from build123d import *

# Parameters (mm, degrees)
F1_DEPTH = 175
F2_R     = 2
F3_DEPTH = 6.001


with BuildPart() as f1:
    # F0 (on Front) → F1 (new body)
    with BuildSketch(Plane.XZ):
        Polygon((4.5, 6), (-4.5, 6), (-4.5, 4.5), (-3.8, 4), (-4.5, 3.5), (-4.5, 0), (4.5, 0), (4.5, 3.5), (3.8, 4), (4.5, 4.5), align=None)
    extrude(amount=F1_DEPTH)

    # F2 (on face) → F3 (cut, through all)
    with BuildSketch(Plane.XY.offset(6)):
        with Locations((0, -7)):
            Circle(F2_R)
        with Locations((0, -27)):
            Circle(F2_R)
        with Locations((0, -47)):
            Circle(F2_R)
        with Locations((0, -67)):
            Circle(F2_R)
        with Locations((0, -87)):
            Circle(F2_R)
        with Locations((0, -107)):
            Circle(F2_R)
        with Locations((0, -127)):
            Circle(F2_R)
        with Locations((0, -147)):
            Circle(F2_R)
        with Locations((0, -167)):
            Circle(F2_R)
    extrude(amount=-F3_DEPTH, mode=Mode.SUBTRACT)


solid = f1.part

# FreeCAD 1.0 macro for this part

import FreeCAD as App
import Part
import Sketcher

V = App.Vector

doc = App.newDocument("Part")
body = doc.addObject("PartDesign::Body", "Body")

# Sketch on XZ plane
sketch1 = body.newObject("Sketcher::SketchObject", "Sketch")
sketch1.AttachmentSupport = (doc.getObject("XZ_Plane"), [""])
sketch1.MapMode = "FlatFace"
sketch1.addGeometry([
    Part.LineSegment(V(4.5, 6, 0), V(-4.5, 6, 0)),  # 0
    Part.LineSegment(V(-4.5, 6, 0), V(-4.5, 4.5, 0)),  # 1
    Part.LineSegment(V(-4.5, 4.5, 0), V(-3.8, 4, 0)),  # 2
    Part.LineSegment(V(-3.8, 4, 0), V(-4.5, 3.5, 0)),  # 3
    Part.LineSegment(V(-4.5, 3.5, 0), V(-4.5, 0, 0)),  # 4
    Part.LineSegment(V(-4.5, 0, 0), V(4.5, 0, 0)),  # 5
    Part.LineSegment(V(4.5, 0, 0), V(4.5, 3.5, 0)),  # 6
    Part.LineSegment(V(4.5, 3.5, 0), V(3.8, 4, 0)),  # 7
    Part.LineSegment(V(3.8, 4, 0), V(4.5, 4.5, 0)),  # 8
    Part.LineSegment(V(4.5, 4.5, 0), V(4.5, 6, 0)),  # 9
], False)
sketch1.addConstraint([
    Sketcher.Constraint("Coincident", 0, 2, 1, 1),
    Sketcher.Constraint("Coincident", 1, 2, 2, 1),
    Sketcher.Constraint("Coincident", 2, 2, 3, 1),
    Sketcher.Constraint("Coincident", 3, 2, 4, 1),
    Sketcher.Constraint("Coincident", 4, 2, 5, 1),
    Sketcher.Constraint("Coincident", 5, 2, 6, 1),
    Sketcher.Constraint("Coincident", 6, 2, 7, 1),
    Sketcher.Constraint("Coincident", 7, 2, 8, 1),
    Sketcher.Constraint("Coincident", 8, 2, 9, 1),
    Sketcher.Constraint("Coincident", 9, 2, 0, 1),
    Sketcher.Constraint("Horizontal", 0),
    Sketcher.Constraint("Vertical", 1),
    Sketcher.Constraint("Vertical", 4),
    Sketcher.Constraint("Horizontal", 5),
    Sketcher.Constraint("Vertical", 6),
    Sketcher.Constraint("Vertical", 9),
    Sketcher.Constraint("Symmetric", 4, 2, 5, 2, -1, 1),
    Sketcher.Constraint("Symmetric", 2, 2, 7, 2, -2),
    Sketcher.Constraint("Symmetric", 1, 2, 8, 2, -2),
    Sketcher.Constraint("Parallel", 2, 7),
    Sketcher.Constraint("Parallel", 3, 8),
    Sketcher.Constraint("Vertical", 1, 2, 3, 2),
    Sketcher.Constraint("DistanceX", 0, 2, 0, 1, 9.0),
    Sketcher.Constraint("DistanceY", 1, 2, 1, 1, 1.5),
    Sketcher.Constraint("DistanceY", 4, 2, 4, 1, 3.5),
    Sketcher.Constraint("DistanceY", -1, 1, 0, 2, 6.0),
    Sketcher.Constraint("DistanceX", 2, 2, -1, 1, 3.8),
])
pad1 = body.newObject("PartDesign::Pad", "Pad")
pad1.Profile = sketch1
pad1.Length = 175

# Sketch on XY plane
sketch2 = body.newObject("Sketcher::SketchObject", "Sketch001")
sketch2.AttachmentSupport = (doc.getObject("XY_Plane"), [""])
sketch2.MapMode = "FlatFace"
sketch2.AttachmentOffset = App.Placement(V(0, 0, 6), App.Rotation())
sketch2.addGeometry([
    Part.Circle(V(0, -7, 0), V(0, 0, 1), 2),  # 0
    Part.Circle(V(0, -27, 0), V(0, 0, 1), 2),  # 1
    Part.Circle(V(0, -47, 0), V(0, 0, 1), 2),  # 2
    Part.Circle(V(0, -67, 0), V(0, 0, 1), 2),  # 3
    Part.Circle(V(0, -87, 0), V(0, 0, 1), 2),  # 4
    Part.Circle(V(0, -107, 0), V(0, 0, 1), 2),  # 5
    Part.Circle(V(0, -127, 0), V(0, 0, 1), 2),  # 6
    Part.Circle(V(0, -147, 0), V(0, 0, 1), 2),  # 7
    Part.Circle(V(0, -167, 0), V(0, 0, 1), 2),  # 8
], False)
sketch2.addConstraint([
    Sketcher.Constraint("Equal", 0, 1),
    Sketcher.Constraint("Equal", 1, 2),
    Sketcher.Constraint("Equal", 2, 3),
    Sketcher.Constraint("Equal", 3, 4),
    Sketcher.Constraint("Equal", 4, 5),
    Sketcher.Constraint("Equal", 5, 6),
    Sketcher.Constraint("Equal", 6, 7),
    Sketcher.Constraint("Equal", 7, 8),
    Sketcher.Constraint("PointOnObject", 0, 3, -2),
    Sketcher.Constraint("PointOnObject", 1, 3, -2),
    Sketcher.Constraint("PointOnObject", 2, 3, -2),
    Sketcher.Constraint("PointOnObject", 3, 3, -2),
    Sketcher.Constraint("PointOnObject", 4, 3, -2),
    Sketcher.Constraint("PointOnObject", 5, 3, -2),
    Sketcher.Constraint("PointOnObject", 6, 3, -2),
    Sketcher.Constraint("PointOnObject", 7, 3, -2),
    Sketcher.Constraint("PointOnObject", 8, 3, -2),
    Sketcher.Constraint("Diameter", 0, 4.0),
    Sketcher.Constraint("DistanceY", 0, 3, -1, 1, 7.0),
    Sketcher.Constraint("DistanceY", 1, 3, -1, 1, 27.0),
    Sketcher.Constraint("DistanceY", 2, 3, -1, 1, 47.0),
    Sketcher.Constraint("DistanceY", 3, 3, -1, 1, 67.0),
    Sketcher.Constraint("DistanceY", 4, 3, -1, 1, 87.0),
    Sketcher.Constraint("DistanceY", 5, 3, -1, 1, 107.0),
    Sketcher.Constraint("DistanceY", 6, 3, -1, 1, 127.0),
    Sketcher.Constraint("DistanceY", 7, 3, -1, 1, 147.0),
    Sketcher.Constraint("DistanceY", 8, 3, -1, 1, 167.0),
])
pocket1 = body.newObject("PartDesign::Pocket", "Pocket")
pocket1.Profile = sketch2
pocket1.Type = "ThroughAll"

doc.recompute()
